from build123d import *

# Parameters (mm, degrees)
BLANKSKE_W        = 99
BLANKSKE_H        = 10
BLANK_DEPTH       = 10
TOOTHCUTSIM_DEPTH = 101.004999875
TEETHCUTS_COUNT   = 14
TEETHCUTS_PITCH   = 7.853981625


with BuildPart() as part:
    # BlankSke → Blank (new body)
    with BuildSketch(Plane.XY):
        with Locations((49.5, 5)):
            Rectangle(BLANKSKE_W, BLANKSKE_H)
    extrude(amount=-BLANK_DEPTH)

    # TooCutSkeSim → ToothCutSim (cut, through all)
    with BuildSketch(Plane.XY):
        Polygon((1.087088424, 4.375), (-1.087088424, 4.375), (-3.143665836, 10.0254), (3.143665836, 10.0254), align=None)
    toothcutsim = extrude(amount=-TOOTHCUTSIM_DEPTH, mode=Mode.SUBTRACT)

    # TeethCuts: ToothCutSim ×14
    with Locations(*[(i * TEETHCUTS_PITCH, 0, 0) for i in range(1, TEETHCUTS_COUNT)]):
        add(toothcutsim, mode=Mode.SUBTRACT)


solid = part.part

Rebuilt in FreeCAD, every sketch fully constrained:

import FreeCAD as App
import Part
import Sketcher
Q = App.Units.Quantity

doc = App.newDocument("Part")
params = doc.addObject("Spreadsheet::Sheet", "Params")
for row, (alias, value) in enumerate([
    ("sketch1_width", "99 mm"),
    ("sketch1_height", "10 mm"),
    ("pad1_length", "10 mm"),
    ("linearpattern_pitch", "7.853982 mm"),
], start=1):
    params.set(f"A{row}", alias)
    params.set(f"B{row}", "=" + value)
    params.setAlias(f"B{row}", alias)

body = doc.addObject("PartDesign::Body", "Body")

# Sketch on XY plane
sketch1 = doc.addObject("Sketcher::SketchObject", "Sketch")
body.addObject(sketch1)
sketch1.AttachmentSupport = (doc.XY_Plane, [""])
sketch1.MapMode = "FlatFace"
sketch1.addGeometry([
    Part.LineSegment(App.Vector(0, 10, 0), App.Vector(0, 0, 0)),
    Part.LineSegment(App.Vector(0, 0, 0), App.Vector(99, 0, 0)),
    Part.LineSegment(App.Vector(99, 0, 0), App.Vector(99, 10, 0)),
    Part.LineSegment(App.Vector(99, 10, 0), App.Vector(0, 10, 0)),
], False)
sketch1.addConstraint([
    Sketcher.Constraint("Coincident", 0, 2, 1, 1),
    Sketcher.Constraint("Coincident", 1, 2, 2, 1),
    Sketcher.Constraint("Coincident", 2, 2, 3, 1),
    Sketcher.Constraint("Coincident", 3, 2, 0, 1),
    Sketcher.Constraint("Vertical", 0),
    Sketcher.Constraint("Horizontal", 1),
    Sketcher.Constraint("Vertical", 2),
    Sketcher.Constraint("Horizontal", 3),
    Sketcher.Constraint("Coincident", 0, 2, -1, 1),
    Sketcher.Constraint("DistanceX", 1, 1, 1, 2, Q("99 mm")),
    Sketcher.Constraint("DistanceY", 0, 2, 0, 1, Q("10 mm")),
])
sketch1.setExpression("Constraints[9]", "Params.sketch1_width")
sketch1.setExpression("Constraints[10]", "Params.sketch1_height")
pad1 = doc.addObject("PartDesign::Pad", "Pad")
body.addObject(pad1)
pad1.Profile = sketch1
pad1.setExpression("Length", "Params.pad1_length")
pad1.Reversed = True

# Sketch on XY plane
sketch2 = doc.addObject("Sketcher::SketchObject", "Sketch001")
body.addObject(sketch2)
sketch2.AttachmentSupport = (doc.XY_Plane, [""])
sketch2.MapMode = "FlatFace"
sketch2.addGeometry([
    Part.LineSegment(App.Vector(-1.1, 4.4, 0), App.Vector(1.1, 4.4, 0)),
    Part.LineSegment(App.Vector(1.1, 4.4, 0), App.Vector(3.1, 10, 0)),
    Part.LineSegment(App.Vector(3.1, 10, 0), App.Vector(-3.1, 10, 0)),
    Part.LineSegment(App.Vector(-3.1, 10, 0), App.Vector(-1.1, 4.4, 0)),
], False)
sketch2.addConstraint([
    Sketcher.Constraint("Coincident", 0, 2, 1, 1),
    Sketcher.Constraint("Coincident", 1, 2, 2, 1),
    Sketcher.Constraint("Coincident", 2, 2, 3, 1),
    Sketcher.Constraint("Coincident", 3, 2, 0, 1),
    Sketcher.Constraint("Horizontal", 0),
    Sketcher.Constraint("Horizontal", 2),
    Sketcher.Constraint("Equal", 1, 3),
    Sketcher.Constraint("Angle", 1, Q("70 deg")),
    Sketcher.Constraint("DistanceY", -1, 1, 0, 2, Q("4.375 mm")),
    Sketcher.Constraint("DistanceX", 2, 2, 2, 1, Q("6.287332 mm")),
    Sketcher.Constraint("DistanceY", -1, 1, 1, 2, Q("10.0254 mm")),
    Sketcher.Constraint("DistanceX", -1, 1, 0, 2, Q("1.087088 mm")),
])
pocket1 = doc.addObject("PartDesign::Pocket", "Pocket")
body.addObject(pocket1)
pocket1.Profile = sketch2
pocket1.Type = "ThroughAll"
doc.recompute()

linearpattern = doc.addObject("PartDesign::LinearPattern", "LinearPattern")
body.addObject(linearpattern)
linearpattern.Originals = [pocket1]
linearpattern.Direction = (doc.X_Axis, [""])
linearpattern.Mode = "offset"
linearpattern.setExpression("Offset", "Params.linearpattern_pitch")
linearpattern.Occurrences = 14
body.Tip = linearpattern

doc.recompute()
